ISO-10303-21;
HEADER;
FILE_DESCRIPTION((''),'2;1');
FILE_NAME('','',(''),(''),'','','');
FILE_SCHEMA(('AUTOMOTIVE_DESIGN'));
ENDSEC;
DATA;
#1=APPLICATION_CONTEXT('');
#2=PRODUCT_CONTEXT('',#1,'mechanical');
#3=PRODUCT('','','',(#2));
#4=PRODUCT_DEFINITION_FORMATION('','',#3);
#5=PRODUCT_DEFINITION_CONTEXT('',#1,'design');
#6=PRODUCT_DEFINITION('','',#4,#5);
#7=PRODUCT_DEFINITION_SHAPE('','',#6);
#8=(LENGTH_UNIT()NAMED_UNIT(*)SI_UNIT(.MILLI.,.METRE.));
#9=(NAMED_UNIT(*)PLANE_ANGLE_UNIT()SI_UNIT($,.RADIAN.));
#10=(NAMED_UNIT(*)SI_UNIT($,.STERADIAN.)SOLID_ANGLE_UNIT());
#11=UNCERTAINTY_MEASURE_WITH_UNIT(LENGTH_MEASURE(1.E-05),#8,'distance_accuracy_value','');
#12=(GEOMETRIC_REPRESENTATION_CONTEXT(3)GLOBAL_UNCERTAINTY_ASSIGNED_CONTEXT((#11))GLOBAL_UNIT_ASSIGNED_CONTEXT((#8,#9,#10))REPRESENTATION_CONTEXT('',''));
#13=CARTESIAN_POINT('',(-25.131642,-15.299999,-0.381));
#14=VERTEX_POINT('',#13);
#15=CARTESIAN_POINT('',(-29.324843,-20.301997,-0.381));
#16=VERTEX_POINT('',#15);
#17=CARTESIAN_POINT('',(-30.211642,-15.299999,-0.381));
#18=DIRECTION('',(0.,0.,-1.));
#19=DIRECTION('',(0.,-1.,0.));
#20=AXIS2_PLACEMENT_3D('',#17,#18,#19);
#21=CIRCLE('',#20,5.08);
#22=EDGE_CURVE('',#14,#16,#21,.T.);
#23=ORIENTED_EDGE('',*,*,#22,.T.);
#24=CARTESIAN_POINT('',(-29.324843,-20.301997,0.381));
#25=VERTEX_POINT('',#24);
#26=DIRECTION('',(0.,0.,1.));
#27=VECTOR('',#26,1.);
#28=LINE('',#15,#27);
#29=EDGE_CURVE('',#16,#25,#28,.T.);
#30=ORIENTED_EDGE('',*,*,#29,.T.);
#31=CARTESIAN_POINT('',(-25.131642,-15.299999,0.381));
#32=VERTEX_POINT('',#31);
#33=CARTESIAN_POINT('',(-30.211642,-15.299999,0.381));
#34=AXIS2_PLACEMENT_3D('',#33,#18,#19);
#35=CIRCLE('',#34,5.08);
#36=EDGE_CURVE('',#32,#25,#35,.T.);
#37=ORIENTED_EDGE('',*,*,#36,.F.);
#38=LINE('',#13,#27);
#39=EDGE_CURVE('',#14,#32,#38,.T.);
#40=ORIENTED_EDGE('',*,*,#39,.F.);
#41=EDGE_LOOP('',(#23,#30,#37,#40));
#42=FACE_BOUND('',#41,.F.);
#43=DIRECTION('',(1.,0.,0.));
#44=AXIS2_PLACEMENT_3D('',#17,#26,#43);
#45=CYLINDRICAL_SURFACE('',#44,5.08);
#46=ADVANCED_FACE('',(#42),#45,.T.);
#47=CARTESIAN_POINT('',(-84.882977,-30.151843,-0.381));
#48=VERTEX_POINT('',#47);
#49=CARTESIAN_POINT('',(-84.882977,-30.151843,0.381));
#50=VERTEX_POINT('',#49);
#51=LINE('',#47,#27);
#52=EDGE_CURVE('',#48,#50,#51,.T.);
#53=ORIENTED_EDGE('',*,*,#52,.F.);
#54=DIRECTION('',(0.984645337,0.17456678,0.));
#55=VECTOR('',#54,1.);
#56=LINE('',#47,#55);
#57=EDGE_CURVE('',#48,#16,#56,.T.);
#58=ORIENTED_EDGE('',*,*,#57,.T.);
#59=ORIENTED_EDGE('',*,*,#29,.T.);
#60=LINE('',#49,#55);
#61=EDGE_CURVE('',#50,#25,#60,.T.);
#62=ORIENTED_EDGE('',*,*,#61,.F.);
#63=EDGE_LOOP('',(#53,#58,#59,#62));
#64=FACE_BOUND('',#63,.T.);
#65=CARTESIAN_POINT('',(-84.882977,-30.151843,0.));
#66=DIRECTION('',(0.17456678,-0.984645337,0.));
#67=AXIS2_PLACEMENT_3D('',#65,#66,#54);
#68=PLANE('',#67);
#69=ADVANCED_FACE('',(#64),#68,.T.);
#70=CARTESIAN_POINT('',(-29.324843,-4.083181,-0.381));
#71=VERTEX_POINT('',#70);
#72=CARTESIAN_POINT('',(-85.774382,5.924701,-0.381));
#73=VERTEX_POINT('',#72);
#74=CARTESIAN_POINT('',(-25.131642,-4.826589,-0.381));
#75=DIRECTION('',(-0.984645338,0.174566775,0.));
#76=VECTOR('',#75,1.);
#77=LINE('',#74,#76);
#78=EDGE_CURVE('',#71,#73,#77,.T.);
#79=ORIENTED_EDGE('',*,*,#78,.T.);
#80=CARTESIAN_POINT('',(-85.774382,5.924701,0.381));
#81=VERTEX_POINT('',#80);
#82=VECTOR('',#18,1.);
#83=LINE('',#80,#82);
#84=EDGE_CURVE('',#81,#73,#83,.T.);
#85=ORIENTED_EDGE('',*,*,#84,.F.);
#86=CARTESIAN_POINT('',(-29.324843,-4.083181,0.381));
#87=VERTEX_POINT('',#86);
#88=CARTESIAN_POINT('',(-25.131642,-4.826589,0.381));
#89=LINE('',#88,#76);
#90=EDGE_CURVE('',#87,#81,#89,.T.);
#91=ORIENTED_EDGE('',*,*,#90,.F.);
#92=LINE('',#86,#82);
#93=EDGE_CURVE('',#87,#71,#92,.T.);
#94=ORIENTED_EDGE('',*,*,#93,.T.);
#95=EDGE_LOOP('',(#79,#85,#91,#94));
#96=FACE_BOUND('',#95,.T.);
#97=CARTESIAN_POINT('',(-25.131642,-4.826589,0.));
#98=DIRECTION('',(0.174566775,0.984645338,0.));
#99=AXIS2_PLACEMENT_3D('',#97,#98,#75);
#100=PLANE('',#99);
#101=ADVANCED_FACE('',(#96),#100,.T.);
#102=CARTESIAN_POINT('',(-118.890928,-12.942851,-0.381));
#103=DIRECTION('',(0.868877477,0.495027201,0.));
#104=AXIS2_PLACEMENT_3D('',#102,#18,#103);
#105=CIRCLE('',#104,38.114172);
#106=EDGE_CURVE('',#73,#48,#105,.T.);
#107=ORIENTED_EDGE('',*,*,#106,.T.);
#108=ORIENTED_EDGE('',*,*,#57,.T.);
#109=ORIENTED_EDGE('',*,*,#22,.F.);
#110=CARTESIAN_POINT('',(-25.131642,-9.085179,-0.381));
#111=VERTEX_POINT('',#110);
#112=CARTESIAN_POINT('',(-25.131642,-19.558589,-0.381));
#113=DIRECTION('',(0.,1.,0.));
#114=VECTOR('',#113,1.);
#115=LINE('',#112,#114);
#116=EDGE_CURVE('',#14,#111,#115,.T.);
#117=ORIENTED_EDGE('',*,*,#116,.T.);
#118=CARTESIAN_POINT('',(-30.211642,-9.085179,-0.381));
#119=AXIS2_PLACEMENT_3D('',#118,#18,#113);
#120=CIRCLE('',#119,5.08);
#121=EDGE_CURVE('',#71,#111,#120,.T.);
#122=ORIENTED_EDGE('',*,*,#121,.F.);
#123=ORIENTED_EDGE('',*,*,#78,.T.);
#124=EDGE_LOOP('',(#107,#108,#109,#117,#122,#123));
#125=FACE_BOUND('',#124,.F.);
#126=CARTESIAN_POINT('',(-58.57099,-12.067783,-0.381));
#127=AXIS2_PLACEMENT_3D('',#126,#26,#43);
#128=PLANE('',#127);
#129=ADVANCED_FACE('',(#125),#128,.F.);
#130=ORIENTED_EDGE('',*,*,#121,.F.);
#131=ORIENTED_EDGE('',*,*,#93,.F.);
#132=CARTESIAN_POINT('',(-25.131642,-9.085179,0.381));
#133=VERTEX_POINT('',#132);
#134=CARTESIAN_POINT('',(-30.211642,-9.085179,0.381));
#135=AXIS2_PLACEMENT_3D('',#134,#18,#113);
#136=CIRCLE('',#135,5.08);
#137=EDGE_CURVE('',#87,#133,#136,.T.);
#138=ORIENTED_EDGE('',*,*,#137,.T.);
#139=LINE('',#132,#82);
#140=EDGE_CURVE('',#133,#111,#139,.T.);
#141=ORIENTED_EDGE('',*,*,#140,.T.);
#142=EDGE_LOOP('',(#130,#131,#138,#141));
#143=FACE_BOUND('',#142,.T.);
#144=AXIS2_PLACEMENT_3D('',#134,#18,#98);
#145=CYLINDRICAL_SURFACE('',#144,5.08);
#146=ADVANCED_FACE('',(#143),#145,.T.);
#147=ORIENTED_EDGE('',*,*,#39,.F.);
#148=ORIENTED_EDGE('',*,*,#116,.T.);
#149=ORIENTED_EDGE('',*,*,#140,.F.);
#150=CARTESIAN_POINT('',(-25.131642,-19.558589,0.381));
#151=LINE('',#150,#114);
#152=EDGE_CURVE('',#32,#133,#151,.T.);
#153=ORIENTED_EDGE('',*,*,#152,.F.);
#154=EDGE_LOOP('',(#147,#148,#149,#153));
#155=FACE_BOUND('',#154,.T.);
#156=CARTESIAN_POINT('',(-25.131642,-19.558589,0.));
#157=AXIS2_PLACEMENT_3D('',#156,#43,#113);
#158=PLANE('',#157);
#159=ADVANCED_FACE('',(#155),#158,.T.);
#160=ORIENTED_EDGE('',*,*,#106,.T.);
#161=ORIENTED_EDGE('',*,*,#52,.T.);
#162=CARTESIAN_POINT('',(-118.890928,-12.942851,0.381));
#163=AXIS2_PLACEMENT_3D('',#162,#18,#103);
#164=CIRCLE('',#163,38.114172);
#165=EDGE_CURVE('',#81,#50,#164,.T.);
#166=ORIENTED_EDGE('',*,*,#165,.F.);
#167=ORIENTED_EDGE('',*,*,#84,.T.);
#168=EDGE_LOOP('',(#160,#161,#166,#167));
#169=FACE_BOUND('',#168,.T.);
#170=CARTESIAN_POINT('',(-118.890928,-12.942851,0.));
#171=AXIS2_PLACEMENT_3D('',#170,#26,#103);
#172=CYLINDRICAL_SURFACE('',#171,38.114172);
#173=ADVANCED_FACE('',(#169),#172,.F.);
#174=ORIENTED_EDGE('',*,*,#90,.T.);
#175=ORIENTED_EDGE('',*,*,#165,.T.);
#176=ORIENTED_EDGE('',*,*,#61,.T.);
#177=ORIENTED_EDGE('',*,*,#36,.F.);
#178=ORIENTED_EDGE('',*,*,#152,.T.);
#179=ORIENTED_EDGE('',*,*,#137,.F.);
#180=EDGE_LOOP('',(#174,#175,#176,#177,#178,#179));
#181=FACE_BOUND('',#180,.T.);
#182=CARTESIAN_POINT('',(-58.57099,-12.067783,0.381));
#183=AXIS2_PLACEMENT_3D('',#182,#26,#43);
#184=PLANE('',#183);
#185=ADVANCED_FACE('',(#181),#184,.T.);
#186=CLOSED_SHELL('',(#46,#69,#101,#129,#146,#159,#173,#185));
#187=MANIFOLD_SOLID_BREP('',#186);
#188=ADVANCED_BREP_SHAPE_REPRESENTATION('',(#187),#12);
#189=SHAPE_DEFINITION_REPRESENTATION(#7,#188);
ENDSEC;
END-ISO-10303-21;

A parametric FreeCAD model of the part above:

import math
import FreeCAD as App
import Part
import Sketcher
Q = App.Units.Quantity


def edges_at(feature, points):
    """Names of the edges that pass closest to the given points."""
    edges = feature.Shape.Edges
    near = lambda p: min(range(len(edges)), key=lambda i: edges[i].distToShape(Part.Vertex(*p))[0])
    return sorted({f"Edge{near(p) + 1}" for p in points})

doc = App.newDocument("Part")
body = doc.addObject("PartDesign::Body", "Body")

# Sketch on XY plane
sketch1 = doc.addObject("Sketcher::SketchObject", "Sketch")
body.addObject(sketch1)
sketch1.AttachmentSupport = (doc.XY_Plane, [""])
sketch1.MapMode = "FlatFace"
sketch1.addGeometry([
    Part.ArcOfCircle(Part.Circle(App.Vector(-119, -13, 0), App.Vector(0, 0, 1), 38), math.radians(-27), math.radians(30)),
    Part.LineSegment(App.Vector(-85, -30, 0), App.Vector(-25, -20, 0)),
    Part.LineSegment(App.Vector(-25, -20, 0), App.Vector(-25, -5, 0)),
    Part.LineSegment(App.Vector(-25, -5, 0), App.Vector(-86, 6, 0)),
], False)
sketch1.addConstraint([
    Sketcher.Constraint("Coincident", 0, 1, 1, 1),
    Sketcher.Constraint("Coincident", 1, 2, 2, 1),
    Sketcher.Constraint("Coincident", 2, 2, 3, 1),
    Sketcher.Constraint("Coincident", 3, 2, 0, 2),
    Sketcher.Constraint("Vertical", 2),
    Sketcher.Constraint("DistanceY", 2, 1, 2, 2, Q("0.58 in")),
    Sketcher.Constraint("Radius", 0, Q("38.114172 mm")),
    Sketcher.Constraint("DistanceY", -1, 1, 3, 2, Q("5.924701 mm")),
    Sketcher.Constraint("Distance", 3, Q("61.588409 mm")),
    Sketcher.Constraint("DistanceY", 0, 3, -1, 1, Q("12.942851 mm")),
    Sketcher.Constraint("DistanceX", 1, 2, -1, 1, Q("25.131642 mm")),
    Sketcher.Constraint("DistanceY", 1, 2, -1, 1, Q("19.558589 mm")),
    Sketcher.Constraint("DistanceX", 0, 3, 0, 1, Q("34.007951 mm")),
])
pad1 = doc.addObject("PartDesign::Pad", "Pad")
body.addObject(pad1)
pad1.Profile = sketch1
pad1.Length = Q("0.03 in")
pad1.Midplane = True
doc.recompute()

fillet = doc.addObject("PartDesign::Fillet", "Fillet")
body.addObject(fillet)
fillet.Base = (pad1, edges_at(pad1, [(-25.132, -19.559, 0), (-25.132, -4.827, 0)]))
fillet.Radius = Q("0.2 in")

doc.recompute()
